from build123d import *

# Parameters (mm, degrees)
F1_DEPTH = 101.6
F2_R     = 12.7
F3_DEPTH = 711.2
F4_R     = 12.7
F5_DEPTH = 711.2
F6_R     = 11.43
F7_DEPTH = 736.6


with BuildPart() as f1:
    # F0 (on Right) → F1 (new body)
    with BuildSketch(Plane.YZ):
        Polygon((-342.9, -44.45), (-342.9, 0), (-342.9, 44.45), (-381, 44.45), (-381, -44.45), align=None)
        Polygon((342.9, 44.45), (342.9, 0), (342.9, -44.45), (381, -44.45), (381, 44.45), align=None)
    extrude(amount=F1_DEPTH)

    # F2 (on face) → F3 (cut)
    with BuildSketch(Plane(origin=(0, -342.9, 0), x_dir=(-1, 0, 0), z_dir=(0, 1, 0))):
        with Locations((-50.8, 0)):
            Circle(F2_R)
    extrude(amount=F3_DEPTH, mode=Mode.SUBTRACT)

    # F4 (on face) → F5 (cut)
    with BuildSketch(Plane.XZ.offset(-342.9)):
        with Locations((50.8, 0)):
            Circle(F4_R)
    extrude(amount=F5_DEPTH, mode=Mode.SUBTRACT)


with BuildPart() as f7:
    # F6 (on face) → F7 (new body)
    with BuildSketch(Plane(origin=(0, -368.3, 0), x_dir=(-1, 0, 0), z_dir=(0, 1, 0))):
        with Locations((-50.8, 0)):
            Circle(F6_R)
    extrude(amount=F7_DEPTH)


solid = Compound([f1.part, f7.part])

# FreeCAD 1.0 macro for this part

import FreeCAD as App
import Part
import Sketcher

V = App.Vector
Q = App.Units.Quantity

doc = App.newDocument("Part")
body = doc.addObject("PartDesign::Body", "Body")
body.AllowCompound = True

# Sketch on YZ plane
sketch1 = body.newObject("Sketcher::SketchObject", "Sketch")
sketch1.AttachmentSupport = (doc.getObject("YZ_Plane"), [""])
sketch1.MapMode = "FlatFace"
sketch1.addGeometry([
    Part.LineSegment(V(-343, -44, 0), V(-343, 44, 0)),  # 0
    Part.LineSegment(V(-343, 44, 0), V(-381, 44, 0)),  # 1
    Part.LineSegment(V(-381, 44, 0), V(-381, -44, 0)),  # 2
    Part.LineSegment(V(-381, -44, 0), V(-343, -44, 0)),  # 3
    Part.LineSegment(V(343, 44, 0), V(343, -44, 0)),  # 4
    Part.LineSegment(V(343, -44, 0), V(381, -44, 0)),  # 5
    Part.LineSegment(V(381, -44, 0), V(381, 44, 0)),  # 6
    Part.LineSegment(V(381, 44, 0), V(343, 44, 0)),  # 7
], False)
sketch1.addConstraint([
    Sketcher.Constraint("Coincident", 0, 2, 1, 1),
    Sketcher.Constraint("Coincident", 1, 2, 2, 1),
    Sketcher.Constraint("Coincident", 2, 2, 3, 1),
    Sketcher.Constraint("Coincident", 3, 2, 0, 1),
    Sketcher.Constraint("Coincident", 4, 2, 5, 1),
    Sketcher.Constraint("Coincident", 5, 2, 6, 1),
    Sketcher.Constraint("Coincident", 6, 2, 7, 1),
    Sketcher.Constraint("Coincident", 7, 2, 4, 1),
    Sketcher.Constraint("Vertical", 0),
    Sketcher.Constraint("Horizontal", 1),
    Sketcher.Constraint("Vertical", 2),
    Sketcher.Constraint("Horizontal", 3),
    Sketcher.Constraint("Vertical", 4),
    Sketcher.Constraint("Horizontal", 5),
    Sketcher.Constraint("Vertical", 6),
    Sketcher.Constraint("Horizontal", 7),
    Sketcher.Constraint("Symmetric", 0, 2, 4, 2, -1, 1),
    Sketcher.Constraint("Symmetric", 2, 2, 6, 2, -1, 1),
    Sketcher.Constraint("Horizontal", 3, 2, 4, 2),
    Sketcher.Constraint("DistanceX", 1, 2, 1, 1, Q("1.5 in")),
    Sketcher.Constraint("DistanceY", 0, 1, 0, 2, Q("3.5 in")),
    Sketcher.Constraint("DistanceX", 1, 2, -1, 1, Q("15 in")),
])
pad1 = body.newObject("PartDesign::Pad", "Pad")
pad1.Profile = sketch1
pad1.Length = Q("4 in")

# Sketch on XZ plane
sketch2 = body.newObject("Sketcher::SketchObject", "Sketch001")
sketch2.AttachmentSupport = (doc.getObject("XZ_Plane"), [""])
sketch2.MapMode = "FlatFace"
sketch2.AttachmentOffset = App.Placement(V(0, 0, 13.5 * 25.4), App.Rotation())
sketch2.addGeometry(Part.Circle(V(51, 0, 0), V(0, 0, 1), 13), False)
sketch2.addConstraint([
    Sketcher.Constraint("PointOnObject", 0, 3, -1),
    Sketcher.Constraint("Diameter", 0, Q("1 in")),
    Sketcher.Constraint("DistanceX", -1, 1, 0, 3, Q("2 in")),
])
pocket1 = body.newObject("PartDesign::Pocket", "Pocket")
pocket1.Profile = sketch2
pocket1.Length = Q("28 in")

# Sketch on XZ plane
sketch3 = body.newObject("Sketcher::SketchObject", "Sketch002")
sketch3.AttachmentSupport = (doc.getObject("XZ_Plane"), [""])
sketch3.MapMode = "FlatFace"
sketch3.AttachmentOffset = App.Placement(V(0, 0, -13.5 * 25.4), App.Rotation())
sketch3.addGeometry(Part.Circle(V(51, 0, 0), V(0, 0, 1), 13), False)
sketch3.addConstraint([
    Sketcher.Constraint("PointOnObject", 0, 3, -1),
    Sketcher.Constraint("Diameter", 0, Q("1 in")),
    Sketcher.Constraint("DistanceX", -1, 1, 0, 3, Q("2 in")),
])
pocket2 = body.newObject("PartDesign::Pocket", "Pocket001")
pocket2.Profile = sketch3
pocket2.Length = Q("28 in")
pocket2.Reversed = True
body2 = doc.addObject("PartDesign::Body", "Body001")

# Sketch on XZ plane
sketch4 = body2.newObject("Sketcher::SketchObject", "Sketch003")
sketch4.AttachmentSupport = (doc.getObject("XZ_Plane001"), [""])
sketch4.MapMode = "FlatFace"
sketch4.AttachmentOffset = App.Placement(V(0, 0, 14.5 * 25.4), App.Rotation())
sketch4.addGeometry(Part.Circle(V(51, 0, 0), V(0, 0, 1), 11), False)
sketch4.addConstraint([
    Sketcher.Constraint("PointOnObject", 0, 3, -1),
    Sketcher.Constraint("Diameter", 0, Q("0.9 in")),
    Sketcher.Constraint("DistanceX", -1, 1, 0, 3, Q("2 in")),
])
pad2 = body2.newObject("PartDesign::Pad", "Pad001")
pad2.Profile = sketch4
pad2.Length = Q("29 in")
pad2.Reversed = True

doc.recompute()
